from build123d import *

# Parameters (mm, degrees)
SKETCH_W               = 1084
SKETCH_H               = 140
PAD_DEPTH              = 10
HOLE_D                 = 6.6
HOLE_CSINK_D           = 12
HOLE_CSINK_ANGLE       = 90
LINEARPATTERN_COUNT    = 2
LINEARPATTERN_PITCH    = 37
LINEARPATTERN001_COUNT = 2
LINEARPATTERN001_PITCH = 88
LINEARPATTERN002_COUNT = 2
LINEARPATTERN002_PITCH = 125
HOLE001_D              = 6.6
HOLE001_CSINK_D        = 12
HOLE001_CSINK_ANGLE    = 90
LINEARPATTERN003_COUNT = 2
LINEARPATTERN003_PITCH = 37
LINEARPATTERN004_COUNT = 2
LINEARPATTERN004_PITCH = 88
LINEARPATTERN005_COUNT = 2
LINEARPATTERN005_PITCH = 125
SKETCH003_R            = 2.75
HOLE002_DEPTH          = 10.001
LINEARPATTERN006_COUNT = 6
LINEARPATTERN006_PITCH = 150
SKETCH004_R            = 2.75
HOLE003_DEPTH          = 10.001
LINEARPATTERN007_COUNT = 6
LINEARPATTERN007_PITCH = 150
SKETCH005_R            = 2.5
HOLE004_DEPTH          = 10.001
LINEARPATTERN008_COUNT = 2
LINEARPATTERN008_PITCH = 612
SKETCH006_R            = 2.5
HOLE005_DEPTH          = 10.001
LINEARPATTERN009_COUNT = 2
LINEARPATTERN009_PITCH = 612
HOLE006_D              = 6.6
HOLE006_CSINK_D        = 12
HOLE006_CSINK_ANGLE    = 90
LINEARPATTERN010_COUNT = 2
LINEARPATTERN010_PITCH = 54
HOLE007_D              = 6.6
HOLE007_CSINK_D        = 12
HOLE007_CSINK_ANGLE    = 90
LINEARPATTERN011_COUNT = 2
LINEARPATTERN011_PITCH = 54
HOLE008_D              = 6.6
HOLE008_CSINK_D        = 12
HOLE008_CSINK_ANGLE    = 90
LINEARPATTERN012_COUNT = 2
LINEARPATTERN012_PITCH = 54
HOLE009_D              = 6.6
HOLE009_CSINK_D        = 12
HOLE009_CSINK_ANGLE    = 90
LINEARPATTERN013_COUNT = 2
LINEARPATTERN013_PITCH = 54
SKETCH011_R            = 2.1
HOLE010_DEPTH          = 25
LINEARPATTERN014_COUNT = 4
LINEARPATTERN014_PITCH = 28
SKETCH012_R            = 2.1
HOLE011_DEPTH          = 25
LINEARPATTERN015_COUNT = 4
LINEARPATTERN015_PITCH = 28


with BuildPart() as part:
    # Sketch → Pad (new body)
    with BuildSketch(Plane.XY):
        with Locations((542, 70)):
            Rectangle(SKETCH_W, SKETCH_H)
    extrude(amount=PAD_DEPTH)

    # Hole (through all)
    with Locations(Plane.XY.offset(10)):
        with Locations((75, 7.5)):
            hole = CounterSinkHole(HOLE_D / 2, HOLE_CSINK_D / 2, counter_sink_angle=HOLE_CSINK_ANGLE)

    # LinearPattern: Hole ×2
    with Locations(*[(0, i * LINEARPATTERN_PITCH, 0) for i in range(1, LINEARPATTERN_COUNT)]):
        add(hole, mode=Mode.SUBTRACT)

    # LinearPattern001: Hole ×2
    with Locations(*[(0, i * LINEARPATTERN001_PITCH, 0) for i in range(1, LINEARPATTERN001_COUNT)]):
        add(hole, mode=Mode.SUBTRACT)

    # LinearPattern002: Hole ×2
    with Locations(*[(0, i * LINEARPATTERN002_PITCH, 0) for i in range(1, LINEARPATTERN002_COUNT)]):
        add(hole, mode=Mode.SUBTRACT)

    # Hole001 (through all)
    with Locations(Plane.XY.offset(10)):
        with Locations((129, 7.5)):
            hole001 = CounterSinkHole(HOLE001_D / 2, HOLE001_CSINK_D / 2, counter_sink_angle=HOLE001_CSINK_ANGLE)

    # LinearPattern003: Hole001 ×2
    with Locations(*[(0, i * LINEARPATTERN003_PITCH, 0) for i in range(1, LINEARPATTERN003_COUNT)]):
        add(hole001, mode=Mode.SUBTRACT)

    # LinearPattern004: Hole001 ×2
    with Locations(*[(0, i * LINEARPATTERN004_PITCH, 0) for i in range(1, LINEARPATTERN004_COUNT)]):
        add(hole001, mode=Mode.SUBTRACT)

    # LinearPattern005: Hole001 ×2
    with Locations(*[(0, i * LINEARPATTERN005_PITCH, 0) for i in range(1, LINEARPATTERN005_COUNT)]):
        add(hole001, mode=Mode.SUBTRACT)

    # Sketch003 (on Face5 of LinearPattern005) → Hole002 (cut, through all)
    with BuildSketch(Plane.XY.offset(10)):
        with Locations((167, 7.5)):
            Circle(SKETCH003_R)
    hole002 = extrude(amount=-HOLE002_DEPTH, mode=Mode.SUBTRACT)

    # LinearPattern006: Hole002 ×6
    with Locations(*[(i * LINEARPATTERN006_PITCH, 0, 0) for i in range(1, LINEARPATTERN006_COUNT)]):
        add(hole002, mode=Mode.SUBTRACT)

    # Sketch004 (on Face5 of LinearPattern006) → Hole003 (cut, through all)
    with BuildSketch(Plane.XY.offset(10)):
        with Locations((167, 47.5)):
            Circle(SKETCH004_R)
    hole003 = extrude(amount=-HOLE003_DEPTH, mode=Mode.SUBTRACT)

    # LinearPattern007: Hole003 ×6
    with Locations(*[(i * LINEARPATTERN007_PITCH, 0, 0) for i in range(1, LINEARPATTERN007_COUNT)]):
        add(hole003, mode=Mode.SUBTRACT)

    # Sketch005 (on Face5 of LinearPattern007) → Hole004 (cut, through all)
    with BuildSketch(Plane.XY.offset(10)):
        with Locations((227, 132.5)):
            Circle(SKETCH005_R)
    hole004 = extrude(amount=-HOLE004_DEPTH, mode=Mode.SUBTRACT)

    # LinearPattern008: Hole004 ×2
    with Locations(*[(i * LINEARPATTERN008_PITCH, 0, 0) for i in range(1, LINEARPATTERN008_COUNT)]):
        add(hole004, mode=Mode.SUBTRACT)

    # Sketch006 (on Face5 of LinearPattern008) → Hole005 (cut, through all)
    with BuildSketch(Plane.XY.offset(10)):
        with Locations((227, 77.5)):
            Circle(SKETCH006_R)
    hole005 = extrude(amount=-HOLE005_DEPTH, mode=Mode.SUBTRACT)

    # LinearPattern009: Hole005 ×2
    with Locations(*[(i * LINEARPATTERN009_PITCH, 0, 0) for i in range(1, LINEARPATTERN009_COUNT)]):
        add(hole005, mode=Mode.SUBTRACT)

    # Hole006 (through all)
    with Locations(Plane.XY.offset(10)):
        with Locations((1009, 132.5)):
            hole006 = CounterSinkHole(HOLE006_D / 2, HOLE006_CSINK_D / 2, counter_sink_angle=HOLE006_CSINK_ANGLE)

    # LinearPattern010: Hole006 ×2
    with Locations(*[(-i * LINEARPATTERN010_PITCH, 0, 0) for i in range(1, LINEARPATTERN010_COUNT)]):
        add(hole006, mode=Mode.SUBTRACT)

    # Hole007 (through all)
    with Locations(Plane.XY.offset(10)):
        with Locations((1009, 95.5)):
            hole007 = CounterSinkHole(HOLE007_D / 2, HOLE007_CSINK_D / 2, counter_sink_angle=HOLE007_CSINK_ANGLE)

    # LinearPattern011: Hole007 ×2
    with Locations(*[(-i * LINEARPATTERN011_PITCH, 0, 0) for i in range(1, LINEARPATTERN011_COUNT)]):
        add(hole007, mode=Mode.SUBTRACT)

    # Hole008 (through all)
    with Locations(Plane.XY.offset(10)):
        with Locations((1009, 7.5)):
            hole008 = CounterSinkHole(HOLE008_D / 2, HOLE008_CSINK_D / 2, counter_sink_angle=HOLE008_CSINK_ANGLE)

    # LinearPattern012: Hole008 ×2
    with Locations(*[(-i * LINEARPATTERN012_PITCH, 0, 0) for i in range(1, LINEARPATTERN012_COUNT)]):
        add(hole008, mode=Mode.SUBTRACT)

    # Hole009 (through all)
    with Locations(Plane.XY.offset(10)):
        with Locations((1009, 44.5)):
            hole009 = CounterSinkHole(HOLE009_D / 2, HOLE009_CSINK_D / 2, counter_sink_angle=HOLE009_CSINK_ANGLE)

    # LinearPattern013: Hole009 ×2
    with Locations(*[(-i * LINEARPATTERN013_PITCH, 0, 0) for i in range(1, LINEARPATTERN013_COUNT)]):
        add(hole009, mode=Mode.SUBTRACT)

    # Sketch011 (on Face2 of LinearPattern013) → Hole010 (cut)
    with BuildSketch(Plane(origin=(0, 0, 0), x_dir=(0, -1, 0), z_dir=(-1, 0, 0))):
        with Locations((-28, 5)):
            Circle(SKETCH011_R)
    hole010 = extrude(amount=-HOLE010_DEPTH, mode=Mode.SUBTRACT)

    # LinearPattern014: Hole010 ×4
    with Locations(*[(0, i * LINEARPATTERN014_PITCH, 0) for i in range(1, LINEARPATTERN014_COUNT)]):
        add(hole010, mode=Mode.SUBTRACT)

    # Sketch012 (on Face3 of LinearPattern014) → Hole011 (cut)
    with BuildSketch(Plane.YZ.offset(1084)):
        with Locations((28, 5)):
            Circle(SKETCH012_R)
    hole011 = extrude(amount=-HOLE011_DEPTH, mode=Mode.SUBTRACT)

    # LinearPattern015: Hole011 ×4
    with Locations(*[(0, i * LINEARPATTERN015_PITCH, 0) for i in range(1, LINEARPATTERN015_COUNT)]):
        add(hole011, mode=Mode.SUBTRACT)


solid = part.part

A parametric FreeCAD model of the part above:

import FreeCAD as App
import Part
import Sketcher
Q = App.Units.Quantity


def add_polygon(sketch, points):
    """Adds a closed chain of lines whose ends are joined by coincident constraints."""
    first, n = sketch.GeometryCount, len(points)
    for a, b in zip(points, points[1:] + points[:1]):
        sketch.addGeometry(Part.LineSegment(App.Vector(*a, 0), App.Vector(*b, 0)), False)
    for i in range(n):
        sketch.addConstraint(Sketcher.Constraint("Coincident", first + i, 2, first + (i + 1) % n, 1))

doc = App.newDocument("Part")
body = doc.addObject("PartDesign::Body", "Body")

# Sketch on XY plane
sketch1 = body.newObject("Sketcher::SketchObject", "Sketch")
sketch1.AttachmentSupport = (doc.getObject("XY_Plane"), [""])
sketch1.MapMode = "FlatFace"
add_polygon(sketch1, [(0, 140), (0, 0), (1084, 0), (1084, 140)])  # lines 0-3
sketch1.addConstraint([
    Sketcher.Constraint("Vertical", 0),
    Sketcher.Constraint("Horizontal", 1),
    Sketcher.Constraint("Vertical", 2),
    Sketcher.Constraint("Horizontal", 3),
    Sketcher.Constraint("Coincident", 0, 2, -1, 1),
    Sketcher.Constraint("DistanceX", 1, 1, 1, 2, Q("1084 mm")),
    Sketcher.Constraint("DistanceY", 0, 2, 0, 1, Q("140 mm")),
])
pad1 = body.newObject("PartDesign::Pad", "Pad")
pad1.Profile = sketch1
pad1.Length = 10

# Sketch on XY plane
sketch2 = body.newObject("Sketcher::SketchObject", "Sketch001")
sketch2.AttachmentSupport = (doc.getObject("XY_Plane"), [""])
sketch2.MapMode = "FlatFace"
sketch2.AttachmentOffset = App.Placement(App.Vector(0, 0, 10), App.Rotation())
sketch2.addGeometry(Part.Circle(App.Vector(75, 7.5, 0), App.Vector(0, 0, 1), 3.3), False)
sketch2.addConstraint([
    Sketcher.Constraint("Diameter", 0, Q("6.6 mm")),
    Sketcher.Constraint("DistanceX", -1, 1, 0, 3, Q("75 mm")),
    Sketcher.Constraint("DistanceY", -1, 1, 0, 3, Q("7.5 mm")),
])
doc.recompute()
hole = body.newObject("PartDesign::Hole", "Hole")
hole.Profile = sketch2
hole.ThreadType = "None"
hole.Diameter = 6.6
hole.DepthType = "ThroughAll"
hole.HoleCutType = "Countersink"
hole.HoleCutDiameter = 12
hole.HoleCutCountersinkAngle = 90
doc.recompute()

linearpattern = body.newObject("PartDesign::LinearPattern", "LinearPattern")
linearpattern.Originals = [hole]
linearpattern.Direction = (doc.getObject("Y_Axis"), [""])
linearpattern.Mode = "offset"
linearpattern.Offset = 37
linearpattern.Occurrences = 2
body.Tip = linearpattern
doc.recompute()

linearpattern2 = body.newObject("PartDesign::LinearPattern", "LinearPattern001")
linearpattern2.Originals = [hole]
linearpattern2.Direction = (doc.getObject("Y_Axis"), [""])
linearpattern2.Mode = "offset"
linearpattern2.Offset = 88
linearpattern2.Occurrences = 2
body.Tip = linearpattern2
doc.recompute()

linearpattern3 = body.newObject("PartDesign::LinearPattern", "LinearPattern002")
linearpattern3.Originals = [hole]
linearpattern3.Direction = (doc.getObject("Y_Axis"), [""])
linearpattern3.Mode = "offset"
linearpattern3.Offset = 125
linearpattern3.Occurrences = 2
body.Tip = linearpattern3

# Sketch on XY plane
sketch3 = body.newObject("Sketcher::SketchObject", "Sketch002")
sketch3.AttachmentSupport = (doc.getObject("XY_Plane"), [""])
sketch3.MapMode = "FlatFace"
sketch3.AttachmentOffset = App.Placement(App.Vector(0, 0, 10), App.Rotation())
sketch3.addGeometry(Part.Circle(App.Vector(129, 7.5, 0), App.Vector(0, 0, 1), 3.3), False)
sketch3.addConstraint([
    Sketcher.Constraint("Diameter", 0, Q("6.6 mm")),
    Sketcher.Constraint("DistanceX", -1, 1, 0, 3, Q("129 mm")),
    Sketcher.Constraint("DistanceY", -1, 1, 0, 3, Q("7.5 mm")),
])
doc.recompute()
hole2 = body.newObject("PartDesign::Hole", "Hole001")
hole2.Profile = sketch3
hole2.ThreadType = "None"
hole2.Diameter = 6.6
hole2.DepthType = "ThroughAll"
hole2.HoleCutType = "Countersink"
hole2.HoleCutDiameter = 12
hole2.HoleCutCountersinkAngle = 90
doc.recompute()

linearpattern4 = body.newObject("PartDesign::LinearPattern", "LinearPattern003")
linearpattern4.Originals = [hole2]
linearpattern4.Direction = (doc.getObject("Y_Axis"), [""])
linearpattern4.Mode = "offset"
linearpattern4.Offset = 37
linearpattern4.Occurrences = 2
body.Tip = linearpattern4
doc.recompute()

linearpattern5 = body.newObject("PartDesign::LinearPattern", "LinearPattern004")
linearpattern5.Originals = [hole2]
linearpattern5.Direction = (doc.getObject("Y_Axis"), [""])
linearpattern5.Mode = "offset"
linearpattern5.Offset = 88
linearpattern5.Occurrences = 2
body.Tip = linearpattern5
doc.recompute()

linearpattern6 = body.newObject("PartDesign::LinearPattern", "LinearPattern005")
linearpattern6.Originals = [hole2]
linearpattern6.Direction = (doc.getObject("Y_Axis"), [""])
linearpattern6.Mode = "offset"
linearpattern6.Offset = 125
linearpattern6.Occurrences = 2
body.Tip = linearpattern6

# Sketch on XY plane
sketch4 = body.newObject("Sketcher::SketchObject", "Sketch003")
sketch4.AttachmentSupport = (doc.getObject("XY_Plane"), [""])
sketch4.MapMode = "FlatFace"
sketch4.AttachmentOffset = App.Placement(App.Vector(0, 0, 10), App.Rotation())
sketch4.addGeometry(Part.Circle(App.Vector(167, 7.5, 0), App.Vector(0, 0, 1), 2.8), False)
sketch4.addConstraint([
    Sketcher.Constraint("Diameter", 0, Q("5.5 mm")),
    Sketcher.Constraint("DistanceX", -1, 1, 0, 3, Q("167 mm")),
    Sketcher.Constraint("DistanceY", -1, 1, 0, 3, Q("7.5 mm")),
])
pocket1 = body.newObject("PartDesign::Pocket", "Pocket")
pocket1.Profile = sketch4
pocket1.Type = "ThroughAll"
doc.recompute()

linearpattern7 = body.newObject("PartDesign::LinearPattern", "LinearPattern006")
linearpattern7.Originals = [pocket1]
linearpattern7.Direction = (doc.getObject("X_Axis"), [""])
linearpattern7.Mode = "offset"
linearpattern7.Offset = 150
linearpattern7.Occurrences = 6
body.Tip = linearpattern7

# Sketch on XY plane
sketch5 = body.newObject("Sketcher::SketchObject", "Sketch004")
sketch5.AttachmentSupport = (doc.getObject("XY_Plane"), [""])
sketch5.MapMode = "FlatFace"
sketch5.AttachmentOffset = App.Placement(App.Vector(0, 0, 10), App.Rotation())
sketch5.addGeometry(Part.Circle(App.Vector(167, 47.5, 0), App.Vector(0, 0, 1), 2.8), False)
sketch5.addConstraint([
    Sketcher.Constraint("Diameter", 0, Q("5.5 mm")),
    Sketcher.Constraint("DistanceX", -1, 1, 0, 3, Q("167 mm")),
    Sketcher.Constraint("DistanceY", -1, 1, 0, 3, Q("47.5 mm")),
])
pocket2 = body.newObject("PartDesign::Pocket", "Pocket001")
pocket2.Profile = sketch5
pocket2.Type = "ThroughAll"
doc.recompute()

linearpattern8 = body.newObject("PartDesign::LinearPattern", "LinearPattern007")
linearpattern8.Originals = [pocket2]
linearpattern8.Direction = (doc.getObject("X_Axis"), [""])
linearpattern8.Mode = "offset"
linearpattern8.Offset = 150
linearpattern8.Occurrences = 6
body.Tip = linearpattern8

# Sketch on XY plane
sketch6 = body.newObject("Sketcher::SketchObject", "Sketch005")
sketch6.AttachmentSupport = (doc.getObject("XY_Plane"), [""])
sketch6.MapMode = "FlatFace"
sketch6.AttachmentOffset = App.Placement(App.Vector(0, 0, 10), App.Rotation())
sketch6.addGeometry(Part.Circle(App.Vector(227, 132.5, 0), App.Vector(0, 0, 1), 2.5), False)
sketch6.addConstraint([
    Sketcher.Constraint("Diameter", 0, Q("5 mm")),
    Sketcher.Constraint("DistanceX", -1, 1, 0, 3, Q("227 mm")),
    Sketcher.Constraint("DistanceY", -1, 1, 0, 3, Q("132.5 mm")),
])
pocket3 = body.newObject("PartDesign::Pocket", "Pocket002")
pocket3.Profile = sketch6
pocket3.Type = "ThroughAll"
doc.recompute()

linearpattern9 = body.newObject("PartDesign::LinearPattern", "LinearPattern008")
linearpattern9.Originals = [pocket3]
linearpattern9.Direction = (doc.getObject("X_Axis"), [""])
linearpattern9.Mode = "offset"
linearpattern9.Offset = 612
linearpattern9.Occurrences = 2
body.Tip = linearpattern9

# Sketch on XY plane
sketch7 = body.newObject("Sketcher::SketchObject", "Sketch006")
sketch7.AttachmentSupport = (doc.getObject("XY_Plane"), [""])
sketch7.MapMode = "FlatFace"
sketch7.AttachmentOffset = App.Placement(App.Vector(0, 0, 10), App.Rotation())
sketch7.addGeometry(Part.Circle(App.Vector(227, 77.5, 0), App.Vector(0, 0, 1), 2.5), False)
sketch7.addConstraint([
    Sketcher.Constraint("Diameter", 0, Q("5 mm")),
    Sketcher.Constraint("DistanceX", -1, 1, 0, 3, Q("227 mm")),
    Sketcher.Constraint("DistanceY", -1, 1, 0, 3, Q("77.5 mm")),
])
pocket4 = body.newObject("PartDesign::Pocket", "Pocket003")
pocket4.Profile = sketch7
pocket4.Type = "ThroughAll"
doc.recompute()

linearpattern10 = body.newObject("PartDesign::LinearPattern", "LinearPattern009")
linearpattern10.Originals = [pocket4]
linearpattern10.Direction = (doc.getObject("X_Axis"), [""])
linearpattern10.Mode = "offset"
linearpattern10.Offset = 612
linearpattern10.Occurrences = 2
body.Tip = linearpattern10

# Sketch on XY plane
sketch8 = body.newObject("Sketcher::SketchObject", "Sketch007")
sketch8.AttachmentSupport = (doc.getObject("XY_Plane"), [""])
sketch8.MapMode = "FlatFace"
sketch8.AttachmentOffset = App.Placement(App.Vector(0, 0, 10), App.Rotation())
sketch8.addGeometry(Part.Circle(App.Vector(1009, 132.5, 0), App.Vector(0, 0, 1), 3.3), False)
sketch8.addConstraint([
    Sketcher.Constraint("Diameter", 0, Q("6.6 mm")),
    Sketcher.Constraint("DistanceX", -1, 1, 0, 3, Q("1009 mm")),
    Sketcher.Constraint("DistanceY", -1, 1, 0, 3, Q("132.5 mm")),
])
doc.recompute()
hole3 = body.newObject("PartDesign::Hole", "Hole002")
hole3.Profile = sketch8
hole3.ThreadType = "None"
hole3.Diameter = 6.6
hole3.DepthType = "ThroughAll"
hole3.HoleCutType = "Countersink"
hole3.HoleCutDiameter = 12
hole3.HoleCutCountersinkAngle = 90
doc.recompute()

linearpattern11 = body.newObject("PartDesign::LinearPattern", "LinearPattern010")
linearpattern11.Originals = [hole3]
linearpattern11.Direction = (doc.getObject("X_Axis"), [""])
linearpattern11.Mode = "offset"
linearpattern11.Offset = 54
linearpattern11.Occurrences = 2
linearpattern11.Reversed = True
body.Tip = linearpattern11

# Sketch on XY plane
sketch9 = body.newObject("Sketcher::SketchObject", "Sketch008")
sketch9.AttachmentSupport = (doc.getObject("XY_Plane"), [""])
sketch9.MapMode = "FlatFace"
sketch9.AttachmentOffset = App.Placement(App.Vector(0, 0, 10), App.Rotation())
sketch9.addGeometry(Part.Circle(App.Vector(1009, 95.5, 0), App.Vector(0, 0, 1), 3.3), False)
sketch9.addConstraint([
    Sketcher.Constraint("Diameter", 0, Q("6.6 mm")),
    Sketcher.Constraint("DistanceX", -1, 1, 0, 3, Q("1009 mm")),
    Sketcher.Constraint("DistanceY", -1, 1, 0, 3, Q("95.5 mm")),
])
doc.recompute()
hole4 = body.newObject("PartDesign::Hole", "Hole003")
hole4.Profile = sketch9
hole4.ThreadType = "None"
hole4.Diameter = 6.6
hole4.DepthType = "ThroughAll"
hole4.HoleCutType = "Countersink"
hole4.HoleCutDiameter = 12
hole4.HoleCutCountersinkAngle = 90
doc.recompute()

linearpattern12 = body.newObject("PartDesign::LinearPattern", "LinearPattern011")
linearpattern12.Originals = [hole4]
linearpattern12.Direction = (doc.getObject("X_Axis"), [""])
linearpattern12.Mode = "offset"
linearpattern12.Offset = 54
linearpattern12.Occurrences = 2
linearpattern12.Reversed = True
body.Tip = linearpattern12

# Sketch on XY plane
sketch10 = body.newObject("Sketcher::SketchObject", "Sketch009")
sketch10.AttachmentSupport = (doc.getObject("XY_Plane"), [""])
sketch10.MapMode = "FlatFace"
sketch10.AttachmentOffset = App.Placement(App.Vector(0, 0, 10), App.Rotation())
sketch10.addGeometry(Part.Circle(App.Vector(1009, 7.5, 0), App.Vector(0, 0, 1), 3.3), False)
sketch10.addConstraint([
    Sketcher.Constraint("Diameter", 0, Q("6.6 mm")),
    Sketcher.Constraint("DistanceX", -1, 1, 0, 3, Q("1009 mm")),
    Sketcher.Constraint("DistanceY", -1, 1, 0, 3, Q("7.5 mm")),
])
doc.recompute()
hole5 = body.newObject("PartDesign::Hole", "Hole004")
hole5.Profile = sketch10
hole5.ThreadType = "None"
hole5.Diameter = 6.6
hole5.DepthType = "ThroughAll"
hole5.HoleCutType = "Countersink"
hole5.HoleCutDiameter = 12
hole5.HoleCutCountersinkAngle = 90
doc.recompute()

linearpattern13 = body.newObject("PartDesign::LinearPattern", "LinearPattern012")
linearpattern13.Originals = [hole5]
linearpattern13.Direction = (doc.getObject("X_Axis"), [""])
linearpattern13.Mode = "offset"
linearpattern13.Offset = 54
linearpattern13.Occurrences = 2
linearpattern13.Reversed = True
body.Tip = linearpattern13

# Sketch on XY plane
sketch11 = body.newObject("Sketcher::SketchObject", "Sketch010")
sketch11.AttachmentSupport = (doc.getObject("XY_Plane"), [""])
sketch11.MapMode = "FlatFace"
sketch11.AttachmentOffset = App.Placement(App.Vector(0, 0, 10), App.Rotation())
sketch11.addGeometry(Part.Circle(App.Vector(1009, 44.5, 0), App.Vector(0, 0, 1), 3.3), False)
sketch11.addConstraint([
    Sketcher.Constraint("Diameter", 0, Q("6.6 mm")),
    Sketcher.Constraint("DistanceX", -1, 1, 0, 3, Q("1009 mm")),
    Sketcher.Constraint("DistanceY", -1, 1, 0, 3, Q("44.5 mm")),
])
doc.recompute()
hole6 = body.newObject("PartDesign::Hole", "Hole005")
hole6.Profile = sketch11
hole6.ThreadType = "None"
hole6.Diameter = 6.6
hole6.DepthType = "ThroughAll"
hole6.HoleCutType = "Countersink"
hole6.HoleCutDiameter = 12
hole6.HoleCutCountersinkAngle = 90
doc.recompute()

linearpattern14 = body.newObject("PartDesign::LinearPattern", "LinearPattern013")
linearpattern14.Originals = [hole6]
linearpattern14.Direction = (doc.getObject("X_Axis"), [""])
linearpattern14.Mode = "offset"
linearpattern14.Offset = 54
linearpattern14.Occurrences = 2
linearpattern14.Reversed = True
body.Tip = linearpattern14

# Sketch on YZ plane
sketch12 = body.newObject("Sketcher::SketchObject", "Sketch011")
sketch12.AttachmentSupport = (doc.getObject("YZ_Plane"), [""])
sketch12.MapMode = "FlatFace"
sketch12.addGeometry(Part.Circle(App.Vector(28, 5, 0), App.Vector(0, 0, 1), 2.1), False)
sketch12.addConstraint([
    Sketcher.Constraint("Diameter", 0, Q("4.2 mm")),
    Sketcher.Constraint("DistanceX", -1, 1, 0, 3, Q("28 mm")),
    Sketcher.Constraint("DistanceY", -1, 1, 0, 3, Q("5 mm")),
])
pocket5 = body.newObject("PartDesign::Pocket", "Pocket004")
pocket5.Profile = sketch12
pocket5.Length = 25
pocket5.Reversed = True
doc.recompute()

linearpattern15 = body.newObject("PartDesign::LinearPattern", "LinearPattern014")
linearpattern15.Originals = [pocket5]
linearpattern15.Direction = (doc.getObject("Y_Axis"), [""])
linearpattern15.Mode = "offset"
linearpattern15.Offset = 28
linearpattern15.Occurrences = 4
body.Tip = linearpattern15

# Sketch on YZ plane
sketch13 = body.newObject("Sketcher::SketchObject", "Sketch012")
sketch13.AttachmentSupport = (doc.getObject("YZ_Plane"), [""])
sketch13.MapMode = "FlatFace"
sketch13.AttachmentOffset = App.Placement(App.Vector(0, 0, 1084), App.Rotation())
sketch13.addGeometry(Part.Circle(App.Vector(28, 5, 0), App.Vector(0, 0, 1), 2.1), False)
sketch13.addConstraint([
    Sketcher.Constraint("Diameter", 0, Q("4.2 mm")),
    Sketcher.Constraint("DistanceX", -1, 1, 0, 3, Q("28 mm")),
    Sketcher.Constraint("DistanceY", -1, 1, 0, 3, Q("5 mm")),
])
pocket6 = body.newObject("PartDesign::Pocket", "Pocket005")
pocket6.Profile = sketch13
pocket6.Length = 25
doc.recompute()

linearpattern16 = body.newObject("PartDesign::LinearPattern", "LinearPattern015")
linearpattern16.Originals = [pocket6]
linearpattern16.Direction = (doc.getObject("Y_Axis"), [""])
linearpattern16.Mode = "offset"
linearpattern16.Offset = 28
linearpattern16.Occurrences = 4
body.Tip = linearpattern16

doc.recompute()
